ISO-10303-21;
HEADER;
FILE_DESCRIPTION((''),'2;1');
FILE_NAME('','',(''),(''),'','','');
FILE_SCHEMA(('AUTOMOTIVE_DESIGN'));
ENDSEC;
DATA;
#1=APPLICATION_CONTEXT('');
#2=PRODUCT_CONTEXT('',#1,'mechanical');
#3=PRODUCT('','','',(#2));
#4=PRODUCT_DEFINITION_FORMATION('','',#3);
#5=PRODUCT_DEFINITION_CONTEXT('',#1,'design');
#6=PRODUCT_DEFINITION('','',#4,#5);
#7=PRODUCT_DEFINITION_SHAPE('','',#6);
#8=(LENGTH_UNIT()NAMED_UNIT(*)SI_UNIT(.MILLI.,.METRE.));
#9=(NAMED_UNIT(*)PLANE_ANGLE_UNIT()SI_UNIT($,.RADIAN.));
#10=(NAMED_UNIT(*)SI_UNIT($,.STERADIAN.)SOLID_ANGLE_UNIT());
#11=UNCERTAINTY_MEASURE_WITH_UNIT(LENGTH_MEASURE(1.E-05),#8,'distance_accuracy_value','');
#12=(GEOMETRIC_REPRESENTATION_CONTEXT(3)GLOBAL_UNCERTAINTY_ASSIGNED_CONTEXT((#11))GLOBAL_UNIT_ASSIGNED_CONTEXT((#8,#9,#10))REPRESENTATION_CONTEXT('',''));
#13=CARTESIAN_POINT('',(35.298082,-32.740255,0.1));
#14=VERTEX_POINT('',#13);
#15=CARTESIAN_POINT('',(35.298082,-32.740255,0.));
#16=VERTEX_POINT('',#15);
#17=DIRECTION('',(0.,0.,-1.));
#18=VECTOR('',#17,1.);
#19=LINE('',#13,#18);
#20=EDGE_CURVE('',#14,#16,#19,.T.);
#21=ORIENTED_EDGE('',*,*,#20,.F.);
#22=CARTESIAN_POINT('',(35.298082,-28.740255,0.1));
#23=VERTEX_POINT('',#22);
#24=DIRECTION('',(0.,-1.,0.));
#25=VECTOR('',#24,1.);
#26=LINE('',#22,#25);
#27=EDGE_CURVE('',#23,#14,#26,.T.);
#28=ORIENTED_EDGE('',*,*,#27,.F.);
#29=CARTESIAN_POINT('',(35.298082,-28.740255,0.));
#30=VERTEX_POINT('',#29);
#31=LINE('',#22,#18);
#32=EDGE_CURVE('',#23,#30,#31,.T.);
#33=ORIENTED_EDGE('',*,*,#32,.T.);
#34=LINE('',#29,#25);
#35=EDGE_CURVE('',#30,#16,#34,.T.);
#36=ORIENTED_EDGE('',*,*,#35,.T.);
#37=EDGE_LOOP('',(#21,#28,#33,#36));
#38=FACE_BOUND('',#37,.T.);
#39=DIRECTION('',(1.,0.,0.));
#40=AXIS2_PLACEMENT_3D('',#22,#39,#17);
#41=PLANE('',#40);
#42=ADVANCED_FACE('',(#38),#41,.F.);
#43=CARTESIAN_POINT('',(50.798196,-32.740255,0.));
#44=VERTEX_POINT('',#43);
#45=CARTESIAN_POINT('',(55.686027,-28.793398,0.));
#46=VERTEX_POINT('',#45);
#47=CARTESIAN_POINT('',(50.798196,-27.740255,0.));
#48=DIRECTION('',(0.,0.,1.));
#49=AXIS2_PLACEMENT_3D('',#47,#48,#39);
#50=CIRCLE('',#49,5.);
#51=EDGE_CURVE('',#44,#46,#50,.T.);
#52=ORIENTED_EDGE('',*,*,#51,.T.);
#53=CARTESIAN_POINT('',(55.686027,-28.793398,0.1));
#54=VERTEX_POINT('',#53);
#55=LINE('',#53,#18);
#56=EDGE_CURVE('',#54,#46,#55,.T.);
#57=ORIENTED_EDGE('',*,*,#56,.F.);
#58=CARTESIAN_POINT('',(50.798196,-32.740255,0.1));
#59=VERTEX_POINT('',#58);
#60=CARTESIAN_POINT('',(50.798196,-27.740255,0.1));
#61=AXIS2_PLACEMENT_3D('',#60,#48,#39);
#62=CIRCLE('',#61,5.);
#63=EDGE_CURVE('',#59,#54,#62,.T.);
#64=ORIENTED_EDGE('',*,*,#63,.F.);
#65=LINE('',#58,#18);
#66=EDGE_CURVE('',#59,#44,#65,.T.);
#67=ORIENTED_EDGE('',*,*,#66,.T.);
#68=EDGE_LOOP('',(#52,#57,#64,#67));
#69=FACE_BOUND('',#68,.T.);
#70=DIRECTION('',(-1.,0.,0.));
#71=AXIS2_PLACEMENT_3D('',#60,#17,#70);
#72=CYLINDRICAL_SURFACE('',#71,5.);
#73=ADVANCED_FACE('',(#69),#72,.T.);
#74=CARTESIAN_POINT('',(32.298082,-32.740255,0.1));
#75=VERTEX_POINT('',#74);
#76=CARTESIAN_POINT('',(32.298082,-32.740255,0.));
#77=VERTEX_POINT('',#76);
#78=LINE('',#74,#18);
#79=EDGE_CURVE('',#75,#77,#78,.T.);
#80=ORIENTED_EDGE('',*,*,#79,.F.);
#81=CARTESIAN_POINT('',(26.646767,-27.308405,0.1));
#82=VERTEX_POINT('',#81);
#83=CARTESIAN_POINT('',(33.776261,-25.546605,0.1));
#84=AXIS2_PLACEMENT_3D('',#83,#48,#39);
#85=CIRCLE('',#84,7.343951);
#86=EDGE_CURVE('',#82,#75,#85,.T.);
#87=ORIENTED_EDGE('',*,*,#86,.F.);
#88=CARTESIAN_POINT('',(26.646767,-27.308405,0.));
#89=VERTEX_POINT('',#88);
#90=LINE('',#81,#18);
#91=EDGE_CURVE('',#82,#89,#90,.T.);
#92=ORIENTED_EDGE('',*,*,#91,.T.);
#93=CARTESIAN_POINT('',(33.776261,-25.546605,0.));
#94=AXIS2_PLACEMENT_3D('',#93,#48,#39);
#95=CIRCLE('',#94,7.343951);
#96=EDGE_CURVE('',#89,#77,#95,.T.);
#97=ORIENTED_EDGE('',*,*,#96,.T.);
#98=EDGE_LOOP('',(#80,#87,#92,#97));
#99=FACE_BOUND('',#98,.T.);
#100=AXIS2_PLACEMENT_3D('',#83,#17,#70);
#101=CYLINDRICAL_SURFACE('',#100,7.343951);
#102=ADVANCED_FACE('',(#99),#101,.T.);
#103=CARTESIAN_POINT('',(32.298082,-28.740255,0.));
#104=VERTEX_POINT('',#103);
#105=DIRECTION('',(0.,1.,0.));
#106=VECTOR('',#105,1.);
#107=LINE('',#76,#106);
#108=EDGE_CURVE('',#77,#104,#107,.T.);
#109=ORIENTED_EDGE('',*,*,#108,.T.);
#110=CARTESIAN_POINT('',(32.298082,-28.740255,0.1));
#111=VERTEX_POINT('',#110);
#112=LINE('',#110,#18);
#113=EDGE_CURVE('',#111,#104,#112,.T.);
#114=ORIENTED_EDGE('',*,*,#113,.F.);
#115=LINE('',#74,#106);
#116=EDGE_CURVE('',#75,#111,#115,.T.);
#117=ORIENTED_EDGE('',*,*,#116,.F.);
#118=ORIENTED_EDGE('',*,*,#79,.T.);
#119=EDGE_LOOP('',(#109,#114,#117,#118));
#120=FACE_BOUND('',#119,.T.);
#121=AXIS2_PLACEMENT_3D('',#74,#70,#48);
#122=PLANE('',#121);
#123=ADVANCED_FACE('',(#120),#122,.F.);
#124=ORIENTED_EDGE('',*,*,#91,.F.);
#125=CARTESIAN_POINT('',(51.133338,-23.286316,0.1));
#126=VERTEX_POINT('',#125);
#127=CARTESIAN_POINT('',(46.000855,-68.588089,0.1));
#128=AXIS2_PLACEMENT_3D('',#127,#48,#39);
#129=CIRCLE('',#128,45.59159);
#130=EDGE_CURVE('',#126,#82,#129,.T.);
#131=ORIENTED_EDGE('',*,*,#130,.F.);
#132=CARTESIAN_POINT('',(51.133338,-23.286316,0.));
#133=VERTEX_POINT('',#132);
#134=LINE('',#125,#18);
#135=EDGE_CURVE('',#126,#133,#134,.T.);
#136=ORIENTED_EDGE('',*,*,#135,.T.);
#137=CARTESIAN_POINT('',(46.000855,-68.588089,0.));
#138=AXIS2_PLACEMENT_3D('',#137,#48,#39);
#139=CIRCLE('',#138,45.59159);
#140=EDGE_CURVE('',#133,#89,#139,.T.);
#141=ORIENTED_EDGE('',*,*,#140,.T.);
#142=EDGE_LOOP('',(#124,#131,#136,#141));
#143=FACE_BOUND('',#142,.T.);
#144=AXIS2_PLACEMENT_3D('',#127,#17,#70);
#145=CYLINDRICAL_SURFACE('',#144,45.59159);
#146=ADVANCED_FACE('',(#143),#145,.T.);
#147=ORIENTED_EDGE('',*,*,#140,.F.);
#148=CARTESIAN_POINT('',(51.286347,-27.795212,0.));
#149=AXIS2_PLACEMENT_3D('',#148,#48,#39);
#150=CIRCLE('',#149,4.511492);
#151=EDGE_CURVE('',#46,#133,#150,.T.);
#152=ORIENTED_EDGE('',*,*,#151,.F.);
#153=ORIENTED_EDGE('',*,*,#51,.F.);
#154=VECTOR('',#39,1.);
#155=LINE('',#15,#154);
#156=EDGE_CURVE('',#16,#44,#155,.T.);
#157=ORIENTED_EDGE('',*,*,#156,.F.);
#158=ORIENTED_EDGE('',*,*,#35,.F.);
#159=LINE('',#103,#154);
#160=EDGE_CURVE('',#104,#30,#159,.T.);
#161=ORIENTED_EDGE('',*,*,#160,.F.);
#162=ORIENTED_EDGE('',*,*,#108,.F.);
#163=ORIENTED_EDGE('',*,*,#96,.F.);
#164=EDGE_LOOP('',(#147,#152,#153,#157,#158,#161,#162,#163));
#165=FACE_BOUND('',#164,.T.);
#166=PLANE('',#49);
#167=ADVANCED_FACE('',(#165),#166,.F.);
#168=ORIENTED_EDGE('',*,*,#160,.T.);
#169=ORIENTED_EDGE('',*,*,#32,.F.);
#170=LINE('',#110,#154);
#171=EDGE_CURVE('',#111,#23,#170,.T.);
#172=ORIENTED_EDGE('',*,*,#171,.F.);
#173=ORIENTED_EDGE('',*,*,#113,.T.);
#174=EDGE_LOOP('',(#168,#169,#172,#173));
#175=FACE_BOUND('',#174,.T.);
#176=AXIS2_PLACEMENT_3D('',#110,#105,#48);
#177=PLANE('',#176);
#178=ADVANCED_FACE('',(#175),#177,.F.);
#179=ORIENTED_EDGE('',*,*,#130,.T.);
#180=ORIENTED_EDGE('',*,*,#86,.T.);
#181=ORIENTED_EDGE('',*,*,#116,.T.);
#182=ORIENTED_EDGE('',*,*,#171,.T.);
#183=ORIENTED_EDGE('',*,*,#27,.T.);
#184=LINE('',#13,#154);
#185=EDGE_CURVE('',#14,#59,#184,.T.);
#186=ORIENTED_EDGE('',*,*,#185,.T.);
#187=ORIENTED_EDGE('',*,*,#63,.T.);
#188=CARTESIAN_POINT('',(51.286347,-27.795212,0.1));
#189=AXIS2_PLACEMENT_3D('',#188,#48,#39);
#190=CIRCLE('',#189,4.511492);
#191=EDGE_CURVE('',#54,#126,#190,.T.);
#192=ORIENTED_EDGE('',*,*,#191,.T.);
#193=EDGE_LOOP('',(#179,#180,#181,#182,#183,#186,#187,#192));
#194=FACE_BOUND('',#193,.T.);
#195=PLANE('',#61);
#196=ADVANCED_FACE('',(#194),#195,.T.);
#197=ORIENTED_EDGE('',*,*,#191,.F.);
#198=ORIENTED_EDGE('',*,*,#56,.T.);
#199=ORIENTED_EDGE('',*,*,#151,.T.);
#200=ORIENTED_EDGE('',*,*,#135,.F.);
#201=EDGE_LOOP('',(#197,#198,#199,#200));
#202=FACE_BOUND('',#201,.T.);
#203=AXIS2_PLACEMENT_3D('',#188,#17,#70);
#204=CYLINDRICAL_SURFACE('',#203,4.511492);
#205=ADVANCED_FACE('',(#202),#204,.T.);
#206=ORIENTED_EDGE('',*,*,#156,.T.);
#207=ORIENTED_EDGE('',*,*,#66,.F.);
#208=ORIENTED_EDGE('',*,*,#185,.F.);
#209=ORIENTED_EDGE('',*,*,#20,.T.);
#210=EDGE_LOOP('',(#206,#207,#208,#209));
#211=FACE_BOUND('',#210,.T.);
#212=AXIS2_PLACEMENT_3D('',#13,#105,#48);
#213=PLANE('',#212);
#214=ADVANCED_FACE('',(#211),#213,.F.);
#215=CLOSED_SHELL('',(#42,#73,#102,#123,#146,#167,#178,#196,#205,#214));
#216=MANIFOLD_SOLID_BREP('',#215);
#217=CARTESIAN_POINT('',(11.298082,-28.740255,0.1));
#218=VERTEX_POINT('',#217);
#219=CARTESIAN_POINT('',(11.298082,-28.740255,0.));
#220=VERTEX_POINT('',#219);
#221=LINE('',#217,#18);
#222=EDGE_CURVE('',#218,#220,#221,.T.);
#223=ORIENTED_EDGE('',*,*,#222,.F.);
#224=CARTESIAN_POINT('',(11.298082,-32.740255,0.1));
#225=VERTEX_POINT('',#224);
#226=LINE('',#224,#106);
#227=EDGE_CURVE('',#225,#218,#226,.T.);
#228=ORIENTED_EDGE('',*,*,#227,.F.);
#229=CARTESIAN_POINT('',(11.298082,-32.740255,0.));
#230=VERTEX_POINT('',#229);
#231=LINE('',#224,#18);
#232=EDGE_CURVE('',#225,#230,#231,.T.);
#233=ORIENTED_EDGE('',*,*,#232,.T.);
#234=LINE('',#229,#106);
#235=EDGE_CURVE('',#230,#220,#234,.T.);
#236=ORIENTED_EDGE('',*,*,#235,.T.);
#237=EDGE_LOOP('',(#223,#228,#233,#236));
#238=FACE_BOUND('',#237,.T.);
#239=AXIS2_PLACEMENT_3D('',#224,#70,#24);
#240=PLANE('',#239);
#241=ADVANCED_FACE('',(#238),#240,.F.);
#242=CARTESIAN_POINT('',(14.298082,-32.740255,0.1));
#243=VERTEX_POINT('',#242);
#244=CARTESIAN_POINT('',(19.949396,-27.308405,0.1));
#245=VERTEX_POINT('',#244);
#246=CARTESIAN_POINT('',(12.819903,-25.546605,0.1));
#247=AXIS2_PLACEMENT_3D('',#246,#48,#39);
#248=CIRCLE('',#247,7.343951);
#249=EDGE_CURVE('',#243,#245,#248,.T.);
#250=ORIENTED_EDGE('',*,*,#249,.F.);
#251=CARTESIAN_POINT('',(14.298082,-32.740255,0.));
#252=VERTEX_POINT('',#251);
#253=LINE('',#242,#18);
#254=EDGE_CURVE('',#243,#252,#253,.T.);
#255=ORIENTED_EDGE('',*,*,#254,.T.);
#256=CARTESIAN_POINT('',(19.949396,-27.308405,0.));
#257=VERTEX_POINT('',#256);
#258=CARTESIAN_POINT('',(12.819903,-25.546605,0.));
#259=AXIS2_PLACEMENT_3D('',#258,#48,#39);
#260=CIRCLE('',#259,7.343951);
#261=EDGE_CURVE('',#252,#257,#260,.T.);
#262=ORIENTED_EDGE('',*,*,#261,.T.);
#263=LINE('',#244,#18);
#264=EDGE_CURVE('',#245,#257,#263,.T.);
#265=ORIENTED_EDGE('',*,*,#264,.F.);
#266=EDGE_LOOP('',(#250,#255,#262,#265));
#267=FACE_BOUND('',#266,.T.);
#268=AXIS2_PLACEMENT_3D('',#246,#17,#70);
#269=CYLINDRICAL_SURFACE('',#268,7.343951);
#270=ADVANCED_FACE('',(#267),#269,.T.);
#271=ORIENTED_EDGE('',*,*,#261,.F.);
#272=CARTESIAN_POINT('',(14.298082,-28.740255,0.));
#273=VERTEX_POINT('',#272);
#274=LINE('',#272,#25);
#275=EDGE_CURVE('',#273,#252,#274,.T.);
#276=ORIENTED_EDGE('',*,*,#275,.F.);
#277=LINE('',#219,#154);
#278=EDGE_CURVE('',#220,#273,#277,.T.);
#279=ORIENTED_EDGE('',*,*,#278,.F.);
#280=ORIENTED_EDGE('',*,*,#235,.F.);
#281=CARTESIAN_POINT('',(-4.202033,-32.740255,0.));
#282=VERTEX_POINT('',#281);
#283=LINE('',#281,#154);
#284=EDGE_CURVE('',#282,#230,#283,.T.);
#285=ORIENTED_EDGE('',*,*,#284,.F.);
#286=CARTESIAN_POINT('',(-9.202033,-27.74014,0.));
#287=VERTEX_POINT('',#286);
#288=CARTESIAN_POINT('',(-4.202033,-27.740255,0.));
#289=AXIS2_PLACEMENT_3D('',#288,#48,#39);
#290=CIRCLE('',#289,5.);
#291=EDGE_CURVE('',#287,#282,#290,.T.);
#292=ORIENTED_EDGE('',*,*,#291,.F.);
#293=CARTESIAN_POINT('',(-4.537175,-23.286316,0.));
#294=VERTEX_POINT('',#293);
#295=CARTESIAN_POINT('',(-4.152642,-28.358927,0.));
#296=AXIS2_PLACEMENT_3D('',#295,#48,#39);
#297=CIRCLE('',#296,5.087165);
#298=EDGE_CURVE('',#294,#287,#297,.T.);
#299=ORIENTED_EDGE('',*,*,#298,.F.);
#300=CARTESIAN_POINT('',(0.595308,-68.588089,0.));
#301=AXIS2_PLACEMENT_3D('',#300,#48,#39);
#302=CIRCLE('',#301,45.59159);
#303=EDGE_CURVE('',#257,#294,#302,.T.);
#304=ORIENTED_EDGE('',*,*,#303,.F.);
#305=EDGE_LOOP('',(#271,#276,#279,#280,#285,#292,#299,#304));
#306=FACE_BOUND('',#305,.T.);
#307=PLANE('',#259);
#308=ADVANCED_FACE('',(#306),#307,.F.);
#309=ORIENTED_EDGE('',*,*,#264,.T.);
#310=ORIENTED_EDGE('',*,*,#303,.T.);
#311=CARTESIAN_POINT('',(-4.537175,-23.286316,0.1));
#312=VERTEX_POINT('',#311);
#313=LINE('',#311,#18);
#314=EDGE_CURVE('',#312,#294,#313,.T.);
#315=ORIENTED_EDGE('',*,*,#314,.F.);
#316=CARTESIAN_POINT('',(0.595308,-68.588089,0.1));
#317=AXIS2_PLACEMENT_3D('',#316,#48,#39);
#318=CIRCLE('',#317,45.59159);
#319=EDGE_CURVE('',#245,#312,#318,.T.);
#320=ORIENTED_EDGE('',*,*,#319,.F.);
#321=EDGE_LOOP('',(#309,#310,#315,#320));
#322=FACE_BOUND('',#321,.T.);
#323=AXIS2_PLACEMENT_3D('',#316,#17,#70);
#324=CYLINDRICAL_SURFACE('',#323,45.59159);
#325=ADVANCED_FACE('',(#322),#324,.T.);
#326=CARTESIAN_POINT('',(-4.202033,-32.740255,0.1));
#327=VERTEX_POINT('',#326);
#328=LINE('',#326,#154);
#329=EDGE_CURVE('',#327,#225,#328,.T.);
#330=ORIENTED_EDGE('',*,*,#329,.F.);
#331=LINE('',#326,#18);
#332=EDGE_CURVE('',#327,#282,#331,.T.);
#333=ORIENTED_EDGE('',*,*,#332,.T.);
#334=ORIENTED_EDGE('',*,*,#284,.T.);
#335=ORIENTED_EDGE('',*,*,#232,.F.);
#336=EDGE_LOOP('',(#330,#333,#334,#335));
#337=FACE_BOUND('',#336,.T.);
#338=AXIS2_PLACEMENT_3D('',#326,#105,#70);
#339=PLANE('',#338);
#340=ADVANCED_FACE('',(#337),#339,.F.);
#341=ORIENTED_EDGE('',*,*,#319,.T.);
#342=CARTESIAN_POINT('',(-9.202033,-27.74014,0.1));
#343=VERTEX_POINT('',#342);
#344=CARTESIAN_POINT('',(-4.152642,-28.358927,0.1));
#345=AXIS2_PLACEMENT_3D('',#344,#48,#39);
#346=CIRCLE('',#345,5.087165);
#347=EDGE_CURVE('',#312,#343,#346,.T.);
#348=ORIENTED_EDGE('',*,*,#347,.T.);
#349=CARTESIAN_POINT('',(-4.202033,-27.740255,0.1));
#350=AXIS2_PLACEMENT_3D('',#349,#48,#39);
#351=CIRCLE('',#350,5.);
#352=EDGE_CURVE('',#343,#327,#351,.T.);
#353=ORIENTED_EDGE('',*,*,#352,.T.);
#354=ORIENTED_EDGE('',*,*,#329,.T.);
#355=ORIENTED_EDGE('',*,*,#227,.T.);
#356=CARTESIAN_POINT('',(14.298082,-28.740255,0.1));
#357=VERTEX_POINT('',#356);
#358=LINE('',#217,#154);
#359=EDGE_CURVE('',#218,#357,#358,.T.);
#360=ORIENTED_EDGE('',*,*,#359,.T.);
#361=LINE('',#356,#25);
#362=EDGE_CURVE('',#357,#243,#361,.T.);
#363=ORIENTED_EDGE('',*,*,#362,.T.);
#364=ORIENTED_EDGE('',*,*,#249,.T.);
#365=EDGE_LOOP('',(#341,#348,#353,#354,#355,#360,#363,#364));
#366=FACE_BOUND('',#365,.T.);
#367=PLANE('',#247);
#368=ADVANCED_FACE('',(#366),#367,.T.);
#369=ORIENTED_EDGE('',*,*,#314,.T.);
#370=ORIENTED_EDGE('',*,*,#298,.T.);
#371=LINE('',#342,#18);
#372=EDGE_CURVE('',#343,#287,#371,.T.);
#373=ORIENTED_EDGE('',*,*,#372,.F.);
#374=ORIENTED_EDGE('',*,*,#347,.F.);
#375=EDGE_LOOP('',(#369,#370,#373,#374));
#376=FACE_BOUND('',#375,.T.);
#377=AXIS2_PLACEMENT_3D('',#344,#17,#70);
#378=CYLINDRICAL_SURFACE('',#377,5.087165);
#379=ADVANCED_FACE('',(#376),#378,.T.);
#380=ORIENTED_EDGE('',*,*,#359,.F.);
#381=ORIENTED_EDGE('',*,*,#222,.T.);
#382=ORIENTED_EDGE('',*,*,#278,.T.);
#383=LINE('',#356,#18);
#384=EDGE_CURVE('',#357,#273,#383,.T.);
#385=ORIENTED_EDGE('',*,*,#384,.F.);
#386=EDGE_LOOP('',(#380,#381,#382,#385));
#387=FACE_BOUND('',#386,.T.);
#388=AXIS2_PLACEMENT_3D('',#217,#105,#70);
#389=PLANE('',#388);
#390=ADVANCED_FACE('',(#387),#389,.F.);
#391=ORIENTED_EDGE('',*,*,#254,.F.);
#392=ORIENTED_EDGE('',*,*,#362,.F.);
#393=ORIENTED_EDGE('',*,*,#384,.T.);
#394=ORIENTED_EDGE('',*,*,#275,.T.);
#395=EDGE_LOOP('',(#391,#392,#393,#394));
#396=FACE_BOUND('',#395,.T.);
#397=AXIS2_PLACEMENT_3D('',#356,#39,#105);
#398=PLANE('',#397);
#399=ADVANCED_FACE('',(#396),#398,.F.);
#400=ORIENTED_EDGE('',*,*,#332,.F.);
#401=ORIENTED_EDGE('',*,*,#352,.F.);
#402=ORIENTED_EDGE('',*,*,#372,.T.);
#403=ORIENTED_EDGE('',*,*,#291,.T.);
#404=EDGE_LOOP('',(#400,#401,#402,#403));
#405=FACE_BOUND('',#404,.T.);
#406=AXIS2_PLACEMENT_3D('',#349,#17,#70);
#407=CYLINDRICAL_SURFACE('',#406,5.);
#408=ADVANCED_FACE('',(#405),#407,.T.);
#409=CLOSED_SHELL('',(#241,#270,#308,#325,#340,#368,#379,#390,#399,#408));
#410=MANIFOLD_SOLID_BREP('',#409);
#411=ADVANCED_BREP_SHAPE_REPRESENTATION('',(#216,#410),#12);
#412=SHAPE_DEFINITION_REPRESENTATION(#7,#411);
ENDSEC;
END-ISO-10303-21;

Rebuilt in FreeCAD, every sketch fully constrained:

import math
import FreeCAD as App
import Part
import Sketcher
Q = App.Units.Quantity

doc = App.newDocument("Part")
body = doc.addObject("PartDesign::Body", "Body")

# Sketch on XY plane
sketch1 = body.newObject("Sketcher::SketchObject", "Sketch")
sketch1.AttachmentSupport = (doc.getObject("XY_Plane"), [""])
sketch1.MapMode = "FlatFace"
sketch1.addGeometry([
    Part.LineSegment(App.Vector(14.298082, -28.740255, 0), App.Vector(14.298082, -32.740255, 0)),  # 0
    Part.ArcOfCircle(Part.Circle(App.Vector(12.819903, -25.546605, 0), App.Vector(0, 0, 1), 7.343951), math.radians(-78.388271), math.radians(-13.880521)),  # 1
    Part.ArcOfCircle(Part.Circle(App.Vector(0.595308, -68.588089, 0), App.Vector(0, 0, 1), 45.59159), math.radians(64.880345), math.radians(96.463787)),  # 2
    Part.ArcOfCircle(Part.Circle(App.Vector(-4.152642, -28.358927, 0), App.Vector(0, 0, 1), 5.087165), math.radians(94.335065), math.radians(173.013424)),  # 3
    Part.ArcOfCircle(Part.Circle(App.Vector(-4.202033, -27.740255, 0), App.Vector(0, 0, 1), 5), math.radians(179.998682), math.radians(270)),  # 4
    Part.LineSegment(App.Vector(-4.202033, -32.740255, 0), App.Vector(11.298082, -32.740255, 0)),  # 5
    Part.LineSegment(App.Vector(11.298082, -32.740255, 0), App.Vector(11.298082, -28.740255, 0)),  # 6
    Part.LineSegment(App.Vector(11.298082, -28.740255, 0), App.Vector(14.298082, -28.740255, 0)),  # 7
], False)
sketch1.addConstraint([
    Sketcher.Constraint("Coincident", 0, 2, 1, 1),
    Sketcher.Constraint("Coincident", 1, 2, 2, 1),
    Sketcher.Constraint("Coincident", 2, 2, 3, 1),
    Sketcher.Constraint("Coincident", 3, 2, 4, 1),
    Sketcher.Constraint("Tangent", 4, 2, 5, 1),
    Sketcher.Constraint("Coincident", 5, 2, 6, 1),
    Sketcher.Constraint("Coincident", 6, 2, 7, 1),
    Sketcher.Constraint("Coincident", 7, 2, 0, 1),
    Sketcher.Constraint("Vertical", 0),
    Sketcher.Constraint("Horizontal", 5),
    Sketcher.Constraint("Vertical", 6),
    Sketcher.Constraint("Horizontal", 7),
    Sketcher.Constraint("Horizontal", 0, 2, 4, 2),
    Sketcher.Constraint("Radius", 4, Q("5 mm")),
    Sketcher.Constraint("DistanceX", 7, 1, 7, 2, Q("3 mm")),
    Sketcher.Constraint("DistanceY", 0, 2, 0, 1, Q("4 mm")),
    Sketcher.Constraint("Radius", 1, Q("7.343951 mm")),
    Sketcher.Constraint("Radius", 2, Q("45.59159 mm")),
    Sketcher.Constraint("Radius", 3, Q("5.087165 mm")),
    Sketcher.Constraint("DistanceY", 1, 2, 1, 3, Q("1.761799 mm")),
    Sketcher.Constraint("DistanceX", 5, 1, 5, 2, Q("15.500115 mm")),
    Sketcher.Constraint("DistanceY", 2, 3, -1, 1, Q("68.588089 mm")),
    Sketcher.Constraint("DistanceX", 3, 3, -1, 1, Q("4.152642 mm")),
    Sketcher.Constraint("DistanceX", -1, 1, 0, 2, Q("14.298082 mm")),
    Sketcher.Constraint("DistanceY", 3, 2, -1, 1, Q("27.74014 mm")),
    Sketcher.Constraint("DistanceY", 3, 3, 1, 3, Q("2.812321 mm")),
    Sketcher.Constraint("DistanceX", 3, 3, 2, 3, Q("4.74795 mm")),
])
pad1 = body.newObject("PartDesign::Pad", "Pad")
pad1.Profile = sketch1
pad1.Length = 0.1
body2 = doc.addObject("PartDesign::Body", "Body001")

# Sketch on XY plane
sketch2 = body2.newObject("Sketcher::SketchObject", "Sketch001")
sketch2.AttachmentSupport = (doc.getObject("XY_Plane001"), [""])
sketch2.MapMode = "FlatFace"
sketch2.addGeometry([
    Part.LineSegment(App.Vector(35.298082, -32.740255, 0), App.Vector(50.798196, -32.740255, 0)),  # 0
    Part.ArcOfCircle(Part.Circle(App.Vector(50.798196, -27.740255, 0), App.Vector(0, 0, 1), 5), math.radians(-90), math.radians(-12.159192)),  # 1
    Part.ArcOfCircle(Part.Circle(App.Vector(51.286347, -27.795212, 0), App.Vector(0, 0, 1), 4.511492), math.radians(-12.78271), math.radians(91.943581)),  # 2
    Part.ArcOfCircle(Part.Circle(App.Vector(46.000855, -68.588089, 0), App.Vector(0, 0, 1), 45.59159), math.radians(83.536213), math.radians(115.119655)),  # 3
    Part.ArcOfCircle(Part.Circle(App.Vector(33.776261, -25.546605, 0), App.Vector(0, 0, 1), 7.343951), math.radians(-166.119479), math.radians(-101.611729)),  # 4
    Part.LineSegment(App.Vector(32.298082, -32.740255, 0), App.Vector(32.298082, -28.740255, 0)),  # 5
    Part.LineSegment(App.Vector(32.298082, -28.740255, 0), App.Vector(35.298082, -28.740255, 0)),  # 6
    Part.LineSegment(App.Vector(35.298082, -28.740255, 0), App.Vector(35.298082, -32.740255, 0)),  # 7
], False)
sketch2.addConstraint([
    Sketcher.Constraint("Tangent", 0, 2, 1, 1),
    Sketcher.Constraint("Coincident", 1, 2, 2, 1),
    Sketcher.Constraint("Coincident", 2, 2, 3, 1),
    Sketcher.Constraint("Coincident", 3, 2, 4, 1),
    Sketcher.Constraint("Coincident", 4, 2, 5, 1),
    Sketcher.Constraint("Coincident", 5, 2, 6, 1),
    Sketcher.Constraint("Coincident", 6, 2, 7, 1),
    Sketcher.Constraint("Coincident", 7, 2, 0, 1),
    Sketcher.Constraint("Horizontal", 0),
    Sketcher.Constraint("Vertical", 5),
    Sketcher.Constraint("Horizontal", 6),
    Sketcher.Constraint("Vertical", 7),
    Sketcher.Constraint("Horizontal", 0, 2, 4, 2),
    Sketcher.Constraint("Radius", 1, Q("5 mm")),
    Sketcher.Constraint("DistanceX", 6, 1, 6, 2, Q("3 mm")),
    Sketcher.Constraint("DistanceY", 5, 1, 5, 2, Q("4 mm")),
    Sketcher.Constraint("Radius", 2, Q("4.511492 mm")),
    Sketcher.Constraint("Radius", 3, Q("45.59159 mm")),
    Sketcher.Constraint("Radius", 4, Q("7.343951 mm")),
    Sketcher.Constraint("DistanceY", 1, 2, -1, 1, Q("28.793398 mm")),
    Sketcher.Constraint("DistanceY", 3, 2, 4, 3, Q("1.761799 mm")),
    Sketcher.Constraint("DistanceX", 0, 1, 0, 2, Q("15.500115 mm")),
    Sketcher.Constraint("DistanceY", 2, 3, -1, 1, Q("27.795212 mm")),
    Sketcher.Constraint("DistanceY", 3, 3, -1, 1, Q("68.588089 mm")),
    Sketcher.Constraint("DistanceX", -1, 1, 4, 3, Q("33.776261 mm")),
    Sketcher.Constraint("DistanceX", -1, 1, 2, 2, Q("51.133338 mm")),
    Sketcher.Constraint("DistanceX", -1, 1, 4, 2, Q("32.298082 mm")),
])
pad2 = body2.newObject("PartDesign::Pad", "Pad001")
pad2.Profile = sketch2
pad2.Length = 0.1

doc.recompute()
